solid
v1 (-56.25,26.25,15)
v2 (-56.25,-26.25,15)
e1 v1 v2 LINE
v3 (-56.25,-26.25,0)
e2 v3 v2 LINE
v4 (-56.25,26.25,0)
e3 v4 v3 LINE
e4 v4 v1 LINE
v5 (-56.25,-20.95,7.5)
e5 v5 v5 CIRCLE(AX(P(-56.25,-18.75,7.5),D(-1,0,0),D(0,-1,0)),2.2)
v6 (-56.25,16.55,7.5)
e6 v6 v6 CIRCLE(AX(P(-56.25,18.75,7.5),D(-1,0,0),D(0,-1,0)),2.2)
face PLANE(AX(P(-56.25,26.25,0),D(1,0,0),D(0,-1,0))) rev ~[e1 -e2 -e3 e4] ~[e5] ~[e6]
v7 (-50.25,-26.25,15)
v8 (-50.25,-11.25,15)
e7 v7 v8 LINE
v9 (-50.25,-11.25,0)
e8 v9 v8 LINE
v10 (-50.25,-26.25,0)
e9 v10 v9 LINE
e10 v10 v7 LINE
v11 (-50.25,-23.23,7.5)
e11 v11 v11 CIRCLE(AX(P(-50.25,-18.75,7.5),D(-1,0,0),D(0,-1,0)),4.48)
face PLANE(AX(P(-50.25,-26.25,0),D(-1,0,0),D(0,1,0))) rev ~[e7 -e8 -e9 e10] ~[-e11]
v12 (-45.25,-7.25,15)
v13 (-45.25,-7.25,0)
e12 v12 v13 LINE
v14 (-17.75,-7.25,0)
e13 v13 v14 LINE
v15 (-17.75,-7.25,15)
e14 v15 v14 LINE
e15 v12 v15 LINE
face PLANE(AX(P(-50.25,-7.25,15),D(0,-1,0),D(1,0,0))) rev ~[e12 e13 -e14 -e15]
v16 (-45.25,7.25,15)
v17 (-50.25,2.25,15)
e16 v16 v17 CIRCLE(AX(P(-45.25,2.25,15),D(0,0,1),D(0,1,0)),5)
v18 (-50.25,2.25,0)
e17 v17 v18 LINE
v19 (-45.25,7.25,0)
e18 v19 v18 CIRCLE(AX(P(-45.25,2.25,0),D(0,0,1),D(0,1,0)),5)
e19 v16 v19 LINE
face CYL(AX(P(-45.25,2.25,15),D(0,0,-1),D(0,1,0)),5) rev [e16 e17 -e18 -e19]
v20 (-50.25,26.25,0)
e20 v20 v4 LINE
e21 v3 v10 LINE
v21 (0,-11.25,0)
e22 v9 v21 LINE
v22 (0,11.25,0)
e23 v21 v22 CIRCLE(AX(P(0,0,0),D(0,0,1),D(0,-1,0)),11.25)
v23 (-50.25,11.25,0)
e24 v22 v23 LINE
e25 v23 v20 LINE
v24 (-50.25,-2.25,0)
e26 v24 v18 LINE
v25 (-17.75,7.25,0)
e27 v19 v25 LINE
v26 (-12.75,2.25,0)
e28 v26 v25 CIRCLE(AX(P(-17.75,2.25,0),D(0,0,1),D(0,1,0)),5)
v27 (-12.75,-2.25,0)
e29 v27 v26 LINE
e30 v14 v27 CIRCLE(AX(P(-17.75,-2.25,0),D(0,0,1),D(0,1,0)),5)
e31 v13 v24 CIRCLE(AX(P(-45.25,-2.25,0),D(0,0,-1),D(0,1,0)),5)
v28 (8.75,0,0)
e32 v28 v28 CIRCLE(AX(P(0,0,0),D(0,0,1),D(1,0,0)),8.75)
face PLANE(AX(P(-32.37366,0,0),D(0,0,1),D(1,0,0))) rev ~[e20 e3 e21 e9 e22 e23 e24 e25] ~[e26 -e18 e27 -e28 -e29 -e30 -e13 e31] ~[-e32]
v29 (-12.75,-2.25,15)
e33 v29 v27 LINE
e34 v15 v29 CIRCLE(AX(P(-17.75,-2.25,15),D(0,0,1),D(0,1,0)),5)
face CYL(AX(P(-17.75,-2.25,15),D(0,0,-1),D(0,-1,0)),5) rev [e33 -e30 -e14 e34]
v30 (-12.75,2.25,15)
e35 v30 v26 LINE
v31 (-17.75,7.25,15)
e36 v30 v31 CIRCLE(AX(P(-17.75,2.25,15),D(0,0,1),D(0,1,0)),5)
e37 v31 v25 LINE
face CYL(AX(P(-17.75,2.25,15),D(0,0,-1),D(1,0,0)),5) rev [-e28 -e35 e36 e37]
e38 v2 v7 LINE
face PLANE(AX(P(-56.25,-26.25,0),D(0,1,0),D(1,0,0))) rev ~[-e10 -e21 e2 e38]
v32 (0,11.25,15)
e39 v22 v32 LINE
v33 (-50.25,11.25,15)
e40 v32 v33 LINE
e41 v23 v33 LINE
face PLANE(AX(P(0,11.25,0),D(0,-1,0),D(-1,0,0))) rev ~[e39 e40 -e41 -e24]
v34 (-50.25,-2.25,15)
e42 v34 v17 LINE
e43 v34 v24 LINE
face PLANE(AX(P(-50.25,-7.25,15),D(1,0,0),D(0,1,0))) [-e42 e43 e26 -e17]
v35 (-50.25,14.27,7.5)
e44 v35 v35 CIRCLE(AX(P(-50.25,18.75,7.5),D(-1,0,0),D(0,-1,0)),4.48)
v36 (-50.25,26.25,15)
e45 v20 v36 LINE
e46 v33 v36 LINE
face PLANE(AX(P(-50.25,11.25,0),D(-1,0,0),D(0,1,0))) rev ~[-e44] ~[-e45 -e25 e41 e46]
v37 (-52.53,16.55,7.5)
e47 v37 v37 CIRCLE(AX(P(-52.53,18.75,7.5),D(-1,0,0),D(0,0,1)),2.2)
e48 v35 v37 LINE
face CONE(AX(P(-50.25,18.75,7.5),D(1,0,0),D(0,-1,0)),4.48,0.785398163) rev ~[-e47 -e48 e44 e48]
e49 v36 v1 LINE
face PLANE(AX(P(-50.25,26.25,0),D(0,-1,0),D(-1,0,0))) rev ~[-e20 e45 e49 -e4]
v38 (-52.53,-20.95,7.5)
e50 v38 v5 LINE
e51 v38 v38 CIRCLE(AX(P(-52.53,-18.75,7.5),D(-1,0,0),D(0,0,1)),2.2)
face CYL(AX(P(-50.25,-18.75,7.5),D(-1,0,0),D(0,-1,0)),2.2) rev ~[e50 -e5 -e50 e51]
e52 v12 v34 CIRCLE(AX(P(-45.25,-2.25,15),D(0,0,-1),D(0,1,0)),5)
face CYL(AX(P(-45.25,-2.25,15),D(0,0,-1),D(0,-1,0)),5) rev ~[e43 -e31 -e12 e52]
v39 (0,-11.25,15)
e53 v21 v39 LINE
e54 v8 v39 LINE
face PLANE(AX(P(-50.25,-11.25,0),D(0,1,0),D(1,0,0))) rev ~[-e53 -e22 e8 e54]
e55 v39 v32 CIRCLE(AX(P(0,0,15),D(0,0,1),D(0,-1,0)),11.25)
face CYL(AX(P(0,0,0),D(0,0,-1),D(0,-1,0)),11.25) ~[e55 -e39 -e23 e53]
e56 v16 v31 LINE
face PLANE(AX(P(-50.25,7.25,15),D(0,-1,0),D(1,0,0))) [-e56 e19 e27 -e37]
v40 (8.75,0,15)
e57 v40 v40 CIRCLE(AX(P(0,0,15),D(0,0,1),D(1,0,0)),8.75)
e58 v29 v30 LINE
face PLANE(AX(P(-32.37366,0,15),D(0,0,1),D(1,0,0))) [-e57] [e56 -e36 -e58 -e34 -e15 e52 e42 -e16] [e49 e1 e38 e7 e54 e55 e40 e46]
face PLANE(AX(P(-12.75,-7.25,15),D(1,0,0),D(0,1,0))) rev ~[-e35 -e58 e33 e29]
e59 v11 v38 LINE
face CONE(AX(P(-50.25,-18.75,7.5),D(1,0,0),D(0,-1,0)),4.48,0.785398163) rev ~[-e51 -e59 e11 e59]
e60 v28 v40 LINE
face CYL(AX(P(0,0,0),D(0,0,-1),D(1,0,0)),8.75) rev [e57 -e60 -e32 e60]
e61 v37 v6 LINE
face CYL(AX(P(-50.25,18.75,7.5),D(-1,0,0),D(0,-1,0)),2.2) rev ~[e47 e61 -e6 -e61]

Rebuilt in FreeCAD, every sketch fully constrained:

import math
import FreeCAD as App
import Part
import Sketcher
Q = App.Units.Quantity


def edges_at(feature, points):
    """Names of the edges that pass closest to the given points."""
    edges = feature.Shape.Edges
    near = lambda p: min(range(len(edges)), key=lambda i: edges[i].distToShape(Part.Vertex(*p))[0])
    return sorted({f"Edge{near(p) + 1}" for p in points})


def add_polygon(sketch, points):
    """Adds a closed chain of lines whose ends are joined by coincident constraints."""
    first, n = sketch.GeometryCount, len(points)
    for a, b in zip(points, points[1:] + points[:1]):
        sketch.addGeometry(Part.LineSegment(App.Vector(*a, 0), App.Vector(*b, 0)), False)
    for i in range(n):
        sketch.addConstraint(Sketcher.Constraint("Coincident", first + i, 2, first + (i + 1) % n, 1))

doc = App.newDocument("Part")
body = doc.addObject("PartDesign::Body", "Body")

# Sketch on XY plane
sketch1 = body.newObject("Sketcher::SketchObject", "Sketch")
sketch1.AttachmentSupport = (doc.getObject("XY_Plane"), [""])
sketch1.MapMode = "FlatFace"
sketch1.addGeometry([
    Part.LineSegment(App.Vector(-50, -11, 0), App.Vector(0, -11, 0)),  # 0
    Part.ArcOfCircle(Part.Circle(App.Vector(0, 0, 0), App.Vector(0, 0, 1), 11), math.radians(-90), math.radians(90)),  # 1
    Part.LineSegment(App.Vector(0, 11, 0), App.Vector(-50, 11, 0)),  # 2
    Part.LineSegment(App.Vector(-50, 11, 0), App.Vector(-50, 26, 0)),  # 3
    Part.LineSegment(App.Vector(-50, 26, 0), App.Vector(-56, 26, 0)),  # 4
    Part.LineSegment(App.Vector(-56, 26, 0), App.Vector(-56, -26, 0)),  # 5
    Part.LineSegment(App.Vector(-56, -26, 0), App.Vector(-50, -26, 0)),  # 6
    Part.LineSegment(App.Vector(-50, -26, 0), App.Vector(-50, -11, 0)),  # 7
    Part.Circle(App.Vector(0, 0, 0), App.Vector(0, 0, 1), 9),  # 8
], False)
sketch1.addConstraint([
    Sketcher.Constraint("Tangent", 0, 2, 1, 1),
    Sketcher.Constraint("Tangent", 1, 2, 2, 1),
    Sketcher.Constraint("Coincident", 2, 2, 3, 1),
    Sketcher.Constraint("Coincident", 3, 2, 4, 1),
    Sketcher.Constraint("Coincident", 4, 2, 5, 1),
    Sketcher.Constraint("Coincident", 5, 2, 6, 1),
    Sketcher.Constraint("Coincident", 6, 2, 7, 1),
    Sketcher.Constraint("Coincident", 7, 2, 0, 1),
    Sketcher.Constraint("Horizontal", 0),
    Sketcher.Constraint("Horizontal", 2),
    Sketcher.Constraint("Vertical", 3),
    Sketcher.Constraint("Horizontal", 4),
    Sketcher.Constraint("Vertical", 5),
    Sketcher.Constraint("Horizontal", 6),
    Sketcher.Constraint("Vertical", 7),
    Sketcher.Constraint("Coincident", 1, 3, -1, 1),
    Sketcher.Constraint("Coincident", 8, 3, -1, 1),
    Sketcher.Constraint("Symmetric", 3, 2, 6, 2, -1),
    Sketcher.Constraint("Diameter", 8, Q("17.5 mm")),
    Sketcher.Constraint("DistanceX", 4, 2, 4, 1, Q("6 mm")),
    Sketcher.Constraint("DistanceY", 3, 1, 3, 2, Q("15 mm")),
    Sketcher.Constraint("Radius", 1, Q("11.25 mm")),
    Sketcher.Constraint("DistanceX", 0, 1, 0, 2, Q("50.25 mm")),
])
pad1 = body.newObject("PartDesign::Pad", "Pad")
pad1.Profile = sketch1
pad1.Length = 15

# Sketch on YZ plane
sketch2 = body.newObject("Sketcher::SketchObject", "Sketch001")
sketch2.AttachmentSupport = (doc.getObject("YZ_Plane"), [""])
sketch2.MapMode = "FlatFace"
sketch2.AttachmentOffset = App.Placement(App.Vector(0, 0, -50.25), App.Rotation())
sketch2.addGeometry(Part.Circle(App.Vector(-18.8, 7.5, 0), App.Vector(0, 0, 1), 2.2), False)
sketch2.addConstraint([
    Sketcher.Constraint("Diameter", 0, Q("4.4 mm")),
    Sketcher.Constraint("DistanceY", -1, 1, 0, 3, Q("7.5 mm")),
    Sketcher.Constraint("DistanceX", 0, 3, -1, 1, Q("18.75 mm")),
])
doc.recompute()
hole = body.newObject("PartDesign::Hole", "Hole")
hole.Profile = sketch2
hole.ThreadType = "None"
hole.Diameter = 4.4
hole.DepthType = "ThroughAll"
hole.HoleCutType = "Countersink"
hole.HoleCutDiameter = 8.96
hole.HoleCutCountersinkAngle = 90

# Sketch on YZ plane
sketch3 = body.newObject("Sketcher::SketchObject", "Sketch002")
sketch3.AttachmentSupport = (doc.getObject("YZ_Plane"), [""])
sketch3.MapMode = "FlatFace"
sketch3.AttachmentOffset = App.Placement(App.Vector(0, 0, -50.25), App.Rotation())
sketch3.addGeometry(Part.Circle(App.Vector(18.8, 7.5, 0), App.Vector(0, 0, 1), 2.2), False)
sketch3.addConstraint([
    Sketcher.Constraint("Diameter", 0, Q("4.4 mm")),
    Sketcher.Constraint("DistanceY", -1, 1, 0, 3, Q("7.5 mm")),
    Sketcher.Constraint("DistanceX", -1, 1, 0, 3, Q("18.75 mm")),
])
doc.recompute()
hole2 = body.newObject("PartDesign::Hole", "Hole001")
hole2.Profile = sketch3
hole2.ThreadType = "None"
hole2.Diameter = 4.4
hole2.DepthType = "ThroughAll"
hole2.HoleCutType = "Countersink"
hole2.HoleCutDiameter = 8.96
hole2.HoleCutCountersinkAngle = 90

# Sketch on XY plane
sketch4 = body.newObject("Sketcher::SketchObject", "Sketch003")
sketch4.AttachmentSupport = (doc.getObject("XY_Plane"), [""])
sketch4.MapMode = "FlatFace"
sketch4.AttachmentOffset = App.Placement(App.Vector(0, 0, 15), App.Rotation())
add_polygon(sketch4, [(-50, 7), (-50, -7), (-13, -7), (-13, 7)])  # lines 0-3
sketch4.addConstraint([
    Sketcher.Constraint("Vertical", 0),
    Sketcher.Constraint("Horizontal", 1),
    Sketcher.Constraint("Vertical", 2),
    Sketcher.Constraint("Horizontal", 3),
    Sketcher.Constraint("DistanceX", 1, 1, 1, 2, Q("37.5 mm")),
    Sketcher.Constraint("DistanceY", 0, 2, 0, 1, Q("14.5 mm")),
    Sketcher.Constraint("DistanceX", 0, 2, -1, 1, Q("50.25 mm")),
    Sketcher.Constraint("DistanceY", 0, 2, -1, 1, Q("7.25 mm")),
])
pocket1 = body.newObject("PartDesign::Pocket", "Pocket")
pocket1.Profile = sketch4
pocket1.Length = 25
doc.recompute()

fillet = body.newObject("PartDesign::Fillet", "Fillet")
fillet.Base = (pocket1, edges_at(pocket1, [
    (-50.25, 7.25, 7.5),
    (-50.25, -7.25, 7.5),
    (-12.75, 7.25, 7.5),
    (-12.75, -7.25, 7.5),
]))
fillet.Radius = 5

doc.recompute()
